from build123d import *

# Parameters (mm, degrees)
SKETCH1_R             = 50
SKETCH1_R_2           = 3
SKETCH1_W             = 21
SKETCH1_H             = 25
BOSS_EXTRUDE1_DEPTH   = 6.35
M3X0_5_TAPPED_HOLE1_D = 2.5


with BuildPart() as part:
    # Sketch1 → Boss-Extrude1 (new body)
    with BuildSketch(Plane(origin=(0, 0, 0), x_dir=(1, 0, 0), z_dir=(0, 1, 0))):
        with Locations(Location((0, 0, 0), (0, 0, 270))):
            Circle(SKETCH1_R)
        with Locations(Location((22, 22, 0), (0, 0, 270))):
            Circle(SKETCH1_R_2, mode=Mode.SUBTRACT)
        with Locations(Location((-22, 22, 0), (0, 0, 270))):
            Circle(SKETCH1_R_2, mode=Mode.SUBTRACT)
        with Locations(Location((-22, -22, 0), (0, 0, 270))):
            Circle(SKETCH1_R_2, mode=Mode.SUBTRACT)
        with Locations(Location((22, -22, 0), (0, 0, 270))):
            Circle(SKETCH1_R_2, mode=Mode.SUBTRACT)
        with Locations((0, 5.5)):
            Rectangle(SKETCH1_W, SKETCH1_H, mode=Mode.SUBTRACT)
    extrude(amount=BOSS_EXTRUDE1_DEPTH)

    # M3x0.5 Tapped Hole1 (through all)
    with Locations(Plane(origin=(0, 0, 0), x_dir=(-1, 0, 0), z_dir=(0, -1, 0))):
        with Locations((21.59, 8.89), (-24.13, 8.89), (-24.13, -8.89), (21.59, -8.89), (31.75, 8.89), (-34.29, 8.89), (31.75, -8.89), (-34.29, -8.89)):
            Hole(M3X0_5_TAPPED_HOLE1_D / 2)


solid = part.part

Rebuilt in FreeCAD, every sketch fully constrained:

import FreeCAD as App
import Part
import Sketcher
from FreeCAD import Vector
Q = App.Units.Quantity

doc = App.newDocument("Part")
body = doc.addObject("PartDesign::Body", "Body")

sketch1 = doc.addObject("Sketcher::SketchObject", "Sketch")
body.addObject(sketch1)
sketch1.AttachmentSupport = (doc.XZ_Plane, [""])
sketch1.MapMode = "FlatFace"
sketch1.addGeometry(Part.Circle(Vector(0, 0, 0), Vector(0, 0, 1), 50), False)
sketch1.addGeometry(Part.Circle(Vector(-22, -22, 0), Vector(0, 0, 1), 3), False)
sketch1.addGeometry(Part.LineSegment(Vector(10.5, 7, 0), Vector(-10.5, 7, 0)), False)
sketch1.addGeometry(Part.LineSegment(Vector(-10.5, 7, 0), Vector(-10.5, -18, 0)), False)
sketch1.addGeometry(Part.LineSegment(Vector(-10.5, -18, 0), Vector(10.5, -18, 0)), False)
sketch1.addGeometry(Part.LineSegment(Vector(10.5, -18, 0), Vector(10.5, 7, 0)), False)
sketch1.addGeometry(Part.Circle(Vector(-22, 22, 0), Vector(0, 0, 1), 3), False)
sketch1.addGeometry(Part.Circle(Vector(22, -22, 0), Vector(0, 0, 1), 3), False)
sketch1.addGeometry(Part.Circle(Vector(22, 22, 0), Vector(0, 0, 1), 3), False)
sketch1.addConstraint(Sketcher.Constraint("Coincident", 2, 2, 3, 1))
sketch1.addConstraint(Sketcher.Constraint("Coincident", 3, 2, 4, 1))
sketch1.addConstraint(Sketcher.Constraint("Coincident", 4, 2, 5, 1))
sketch1.addConstraint(Sketcher.Constraint("Coincident", 5, 2, 2, 1))
sketch1.addConstraint(Sketcher.Constraint("Horizontal", 2))
sketch1.addConstraint(Sketcher.Constraint("Vertical", 3))
sketch1.addConstraint(Sketcher.Constraint("Horizontal", 4))
sketch1.addConstraint(Sketcher.Constraint("Vertical", 5))
sketch1.addConstraint(Sketcher.Constraint("Coincident", 0, 3, -1, 1))
sketch1.addConstraint(Sketcher.Constraint("Equal", 1, 6))
sketch1.addConstraint(Sketcher.Constraint("Equal", 6, 7))
sketch1.addConstraint(Sketcher.Constraint("Equal", 7, 8))
sketch1.addConstraint(Sketcher.Constraint("Symmetric", 6, 3, 7, 3, -1, 1))
sketch1.addConstraint(Sketcher.Constraint("Symmetric", 1, 3, 8, 3, -1, 1))
sketch1.addConstraint(Sketcher.Constraint("Symmetric", 1, 3, 7, 3, -2))
sketch1.addConstraint(Sketcher.Constraint("Diameter", 0, Q("100 mm")))
sketch1.addConstraint(Sketcher.Constraint("Diameter", 1, Q("6 mm")))
sketch1.addConstraint(Sketcher.Constraint("DistanceX", 2, 2, 2, 1, Q("21 mm")))
sketch1.addConstraint(Sketcher.Constraint("DistanceY", 3, 2, 3, 1, Q("25 mm")))
sketch1.addConstraint(Sketcher.Constraint("DistanceX", 1, 3, -1, 1, Q("22 mm")))
sketch1.addConstraint(Sketcher.Constraint("DistanceY", 1, 3, -1, 1, Q("22 mm")))
sketch1.addConstraint(Sketcher.Constraint("DistanceY", -1, 1, 2, 2, Q("7 mm")))
sketch1.addConstraint(Sketcher.Constraint("DistanceX", 2, 2, -1, 1, Q("10.5 mm")))
pad1 = doc.addObject("PartDesign::Pad", "Pad")
body.addObject(pad1)
pad1.Profile = sketch1
pad1.Length = 6.35
pad1.Reversed = True

sketch2 = doc.addObject("Sketcher::SketchObject", "Sketch001")
body.addObject(sketch2)
sketch2.AttachmentSupport = (doc.XZ_Plane, [""])
sketch2.MapMode = "FlatFace"
sketch2.addGeometry(Part.Circle(Vector(-21.6, -8.9, 0), Vector(0, 0, 1), 1.2), False)
sketch2.addGeometry(Part.Circle(Vector(24.1, -8.9, 0), Vector(0, 0, 1), 1.2), False)
sketch2.addGeometry(Part.Circle(Vector(24.1, 8.9, 0), Vector(0, 0, 1), 1.2), False)
sketch2.addGeometry(Part.Circle(Vector(-21.6, 8.9, 0), Vector(0, 0, 1), 1.2), False)
sketch2.addGeometry(Part.Circle(Vector(-31.8, -8.9, 0), Vector(0, 0, 1), 1.2), False)
sketch2.addGeometry(Part.Circle(Vector(34.3, -8.9, 0), Vector(0, 0, 1), 1.2), False)
sketch2.addGeometry(Part.Circle(Vector(-31.8, 8.9, 0), Vector(0, 0, 1), 1.2), False)
sketch2.addGeometry(Part.Circle(Vector(34.3, 8.9, 0), Vector(0, 0, 1), 1.2), False)
sketch2.addConstraint(Sketcher.Constraint("Equal", 0, 1))
sketch2.addConstraint(Sketcher.Constraint("Equal", 1, 2))
sketch2.addConstraint(Sketcher.Constraint("Equal", 2, 3))
sketch2.addConstraint(Sketcher.Constraint("Equal", 3, 4))
sketch2.addConstraint(Sketcher.Constraint("Equal", 4, 5))
sketch2.addConstraint(Sketcher.Constraint("Equal", 5, 6))
sketch2.addConstraint(Sketcher.Constraint("Equal", 6, 7))
sketch2.addConstraint(Sketcher.Constraint("Symmetric", 1, 3, 2, 3, -1))
sketch2.addConstraint(Sketcher.Constraint("Symmetric", 0, 3, 3, 3, -1))
sketch2.addConstraint(Sketcher.Constraint("Symmetric", 4, 3, 6, 3, -1))
sketch2.addConstraint(Sketcher.Constraint("Symmetric", 5, 3, 7, 3, -1))
sketch2.addConstraint(Sketcher.Constraint("Horizontal", 0, 3, 1, 3))
sketch2.addConstraint(Sketcher.Constraint("Horizontal", 1, 3, 4, 3))
sketch2.addConstraint(Sketcher.Constraint("Horizontal", 4, 3, 5, 3))
sketch2.addConstraint(Sketcher.Constraint("Diameter", 0, Q("2.5 mm")))
sketch2.addConstraint(Sketcher.Constraint("DistanceX", 0, 3, -1, 1, Q("21.59 mm")))
sketch2.addConstraint(Sketcher.Constraint("DistanceY", 0, 3, -1, 1, Q("8.89 mm")))
sketch2.addConstraint(Sketcher.Constraint("DistanceX", -1, 1, 1, 3, Q("24.13 mm")))
sketch2.addConstraint(Sketcher.Constraint("DistanceX", 4, 3, -1, 1, Q("31.75 mm")))
sketch2.addConstraint(Sketcher.Constraint("DistanceX", -1, 1, 5, 3, Q("34.29 mm")))
doc.recompute()
hole = doc.addObject("PartDesign::Hole", "Hole")
body.addObject(hole)
hole.Profile = sketch2
hole.ThreadType = "None"
hole.Diameter = 2.5
hole.DepthType = "ThroughAll"

doc.recompute()
